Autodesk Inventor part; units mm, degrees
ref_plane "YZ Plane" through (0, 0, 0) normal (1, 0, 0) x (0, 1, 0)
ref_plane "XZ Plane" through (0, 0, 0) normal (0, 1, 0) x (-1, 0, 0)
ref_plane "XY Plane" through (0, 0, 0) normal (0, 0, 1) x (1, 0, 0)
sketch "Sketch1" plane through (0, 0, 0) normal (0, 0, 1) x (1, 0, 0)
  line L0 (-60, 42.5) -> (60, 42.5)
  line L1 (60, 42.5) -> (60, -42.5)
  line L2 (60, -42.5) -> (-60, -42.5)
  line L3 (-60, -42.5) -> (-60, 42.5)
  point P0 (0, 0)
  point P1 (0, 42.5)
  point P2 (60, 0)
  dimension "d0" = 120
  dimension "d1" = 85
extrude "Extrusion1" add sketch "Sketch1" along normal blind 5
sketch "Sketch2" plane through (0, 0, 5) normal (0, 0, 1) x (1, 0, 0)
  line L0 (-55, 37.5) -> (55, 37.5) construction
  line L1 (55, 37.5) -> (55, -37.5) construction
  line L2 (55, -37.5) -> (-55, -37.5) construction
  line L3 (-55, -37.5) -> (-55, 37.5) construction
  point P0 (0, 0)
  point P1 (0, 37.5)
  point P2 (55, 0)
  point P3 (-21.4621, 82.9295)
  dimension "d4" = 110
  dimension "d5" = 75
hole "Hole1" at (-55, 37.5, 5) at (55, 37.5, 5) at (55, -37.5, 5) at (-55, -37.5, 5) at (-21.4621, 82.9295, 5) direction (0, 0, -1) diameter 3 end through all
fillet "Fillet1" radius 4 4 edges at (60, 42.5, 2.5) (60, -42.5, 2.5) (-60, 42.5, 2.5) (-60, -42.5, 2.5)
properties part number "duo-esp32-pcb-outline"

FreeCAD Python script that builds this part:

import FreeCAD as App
import Part
import Sketcher
from FreeCAD import Vector


def edges_at(feature, points):
    """Names of the edges that pass closest to the given points."""
    edges = feature.Shape.Edges
    near = lambda p: min(range(len(edges)), key=lambda i: edges[i].distToShape(Part.Vertex(*p))[0])
    return sorted({f"Edge{near(p) + 1}" for p in points})

doc = App.newDocument("Part")
params = doc.addObject("Spreadsheet::Sheet", "Params")
for row, (alias, value) in enumerate([
    ("sketch1_width", "120 mm"),
    ("sketch1_height", "85 mm"),
    ("pad1_length", "5 mm"),
    ("sketch2_diameter", "3 mm"),
    ("hole_diameter", "3 mm"),
    ("fillet_radius", "4 mm"),
], start=1):
    params.set(f"A{row}", alias)
    params.set(f"B{row}", "=" + value)
    params.setAlias(f"B{row}", alias)

body = doc.addObject("PartDesign::Body", "Body")

sketch1 = doc.addObject("Sketcher::SketchObject", "Sketch")
body.addObject(sketch1)
sketch1.AttachmentSupport = (doc.XY_Plane, [""])
sketch1.MapMode = "FlatFace"
sketch1.addGeometry(Part.LineSegment(Vector(60, 42.5, 0), Vector(-60, 42.5, 0)), False)
sketch1.addGeometry(Part.LineSegment(Vector(-60, 42.5, 0), Vector(-60, -42.5, 0)), False)
sketch1.addGeometry(Part.LineSegment(Vector(-60, -42.5, 0), Vector(60, -42.5, 0)), False)
sketch1.addGeometry(Part.LineSegment(Vector(60, -42.5, 0), Vector(60, 42.5, 0)), False)
sketch1.addConstraint(Sketcher.Constraint("Coincident", 0, 2, 1, 1))
sketch1.addConstraint(Sketcher.Constraint("Coincident", 1, 2, 2, 1))
sketch1.addConstraint(Sketcher.Constraint("Coincident", 2, 2, 3, 1))
sketch1.addConstraint(Sketcher.Constraint("Coincident", 3, 2, 0, 1))
sketch1.addConstraint(Sketcher.Constraint("Horizontal", 0))
sketch1.addConstraint(Sketcher.Constraint("Vertical", 1))
sketch1.addConstraint(Sketcher.Constraint("Horizontal", 2))
sketch1.addConstraint(Sketcher.Constraint("Vertical", 3))
sketch1.addConstraint(Sketcher.Constraint("Symmetric", 0, 2, 2, 2, -1, 1))
sketch1.addConstraint(Sketcher.Constraint("DistanceX", 0, 2, 0, 1, 120.0))
sketch1.addConstraint(Sketcher.Constraint("DistanceY", 1, 2, 1, 1, 85.0))
sketch1.setExpression("Constraints[9]", "Params.sketch1_width")
sketch1.setExpression("Constraints[10]", "Params.sketch1_height")
pad1 = doc.addObject("PartDesign::Pad", "Pad")
body.addObject(pad1)
pad1.Profile = sketch1
pad1.setExpression("Length", "Params.pad1_length")

sketch2 = doc.addObject("Sketcher::SketchObject", "Sketch001")
body.addObject(sketch2)
sketch2.AttachmentSupport = (doc.XY_Plane, [""])
sketch2.MapMode = "FlatFace"
sketch2.AttachmentOffset = App.Placement(Vector(0, 0, 5), App.Rotation())
sketch2.addGeometry(Part.Circle(Vector(-55, 37.5, 0), Vector(0, 0, 1), 1.5), False)
sketch2.addGeometry(Part.Circle(Vector(55, 37.5, 0), Vector(0, 0, 1), 1.5), False)
sketch2.addGeometry(Part.Circle(Vector(55, -37.5, 0), Vector(0, 0, 1), 1.5), False)
sketch2.addGeometry(Part.Circle(Vector(-55, -37.5, 0), Vector(0, 0, 1), 1.5), False)
sketch2.addGeometry(Part.Circle(Vector(-21.4621, 82.9295, 0), Vector(0, 0, 1), 1.5), False)
sketch2.addConstraint(Sketcher.Constraint("Equal", 0, 1))
sketch2.addConstraint(Sketcher.Constraint("Equal", 1, 2))
sketch2.addConstraint(Sketcher.Constraint("Equal", 2, 3))
sketch2.addConstraint(Sketcher.Constraint("Equal", 3, 4))
sketch2.addConstraint(Sketcher.Constraint("Symmetric", 0, 3, 2, 3, -1, 1))
sketch2.addConstraint(Sketcher.Constraint("Symmetric", 1, 3, 3, 3, -1, 1))
sketch2.addConstraint(Sketcher.Constraint("Symmetric", 0, 3, 1, 3, -2))
sketch2.addConstraint(Sketcher.Constraint("Diameter", 0, 3.0))
sketch2.addConstraint(Sketcher.Constraint("DistanceX", 0, 3, -1, 1, 55.0))
sketch2.addConstraint(Sketcher.Constraint("DistanceY", 2, 3, 1, 3, 75.0))
sketch2.addConstraint(Sketcher.Constraint("DistanceX", 4, 3, -1, 1, 21.462))
sketch2.addConstraint(Sketcher.Constraint("DistanceY", -1, 1, 4, 3, 82.9295))
sketch2.setExpression("Constraints[7]", "Params.sketch2_diameter")
doc.recompute()
hole = doc.addObject("PartDesign::Hole", "Hole")
body.addObject(hole)
hole.Profile = sketch2
hole.ThreadType = "None"
hole.setExpression("Diameter", "Params.hole_diameter")
hole.DepthType = "ThroughAll"
doc.recompute()

fillet = doc.addObject("PartDesign::Fillet", "Fillet")
body.addObject(fillet)
fillet.Base = (hole, edges_at(hole, [
    (60, 42.5, 2.5),
    (60, -42.5, 2.5),
    (-60, 42.5, 2.5),
    (-60, -42.5, 2.5),
]))
fillet.setExpression("Radius", "Params.fillet_radius")

doc.recompute()
